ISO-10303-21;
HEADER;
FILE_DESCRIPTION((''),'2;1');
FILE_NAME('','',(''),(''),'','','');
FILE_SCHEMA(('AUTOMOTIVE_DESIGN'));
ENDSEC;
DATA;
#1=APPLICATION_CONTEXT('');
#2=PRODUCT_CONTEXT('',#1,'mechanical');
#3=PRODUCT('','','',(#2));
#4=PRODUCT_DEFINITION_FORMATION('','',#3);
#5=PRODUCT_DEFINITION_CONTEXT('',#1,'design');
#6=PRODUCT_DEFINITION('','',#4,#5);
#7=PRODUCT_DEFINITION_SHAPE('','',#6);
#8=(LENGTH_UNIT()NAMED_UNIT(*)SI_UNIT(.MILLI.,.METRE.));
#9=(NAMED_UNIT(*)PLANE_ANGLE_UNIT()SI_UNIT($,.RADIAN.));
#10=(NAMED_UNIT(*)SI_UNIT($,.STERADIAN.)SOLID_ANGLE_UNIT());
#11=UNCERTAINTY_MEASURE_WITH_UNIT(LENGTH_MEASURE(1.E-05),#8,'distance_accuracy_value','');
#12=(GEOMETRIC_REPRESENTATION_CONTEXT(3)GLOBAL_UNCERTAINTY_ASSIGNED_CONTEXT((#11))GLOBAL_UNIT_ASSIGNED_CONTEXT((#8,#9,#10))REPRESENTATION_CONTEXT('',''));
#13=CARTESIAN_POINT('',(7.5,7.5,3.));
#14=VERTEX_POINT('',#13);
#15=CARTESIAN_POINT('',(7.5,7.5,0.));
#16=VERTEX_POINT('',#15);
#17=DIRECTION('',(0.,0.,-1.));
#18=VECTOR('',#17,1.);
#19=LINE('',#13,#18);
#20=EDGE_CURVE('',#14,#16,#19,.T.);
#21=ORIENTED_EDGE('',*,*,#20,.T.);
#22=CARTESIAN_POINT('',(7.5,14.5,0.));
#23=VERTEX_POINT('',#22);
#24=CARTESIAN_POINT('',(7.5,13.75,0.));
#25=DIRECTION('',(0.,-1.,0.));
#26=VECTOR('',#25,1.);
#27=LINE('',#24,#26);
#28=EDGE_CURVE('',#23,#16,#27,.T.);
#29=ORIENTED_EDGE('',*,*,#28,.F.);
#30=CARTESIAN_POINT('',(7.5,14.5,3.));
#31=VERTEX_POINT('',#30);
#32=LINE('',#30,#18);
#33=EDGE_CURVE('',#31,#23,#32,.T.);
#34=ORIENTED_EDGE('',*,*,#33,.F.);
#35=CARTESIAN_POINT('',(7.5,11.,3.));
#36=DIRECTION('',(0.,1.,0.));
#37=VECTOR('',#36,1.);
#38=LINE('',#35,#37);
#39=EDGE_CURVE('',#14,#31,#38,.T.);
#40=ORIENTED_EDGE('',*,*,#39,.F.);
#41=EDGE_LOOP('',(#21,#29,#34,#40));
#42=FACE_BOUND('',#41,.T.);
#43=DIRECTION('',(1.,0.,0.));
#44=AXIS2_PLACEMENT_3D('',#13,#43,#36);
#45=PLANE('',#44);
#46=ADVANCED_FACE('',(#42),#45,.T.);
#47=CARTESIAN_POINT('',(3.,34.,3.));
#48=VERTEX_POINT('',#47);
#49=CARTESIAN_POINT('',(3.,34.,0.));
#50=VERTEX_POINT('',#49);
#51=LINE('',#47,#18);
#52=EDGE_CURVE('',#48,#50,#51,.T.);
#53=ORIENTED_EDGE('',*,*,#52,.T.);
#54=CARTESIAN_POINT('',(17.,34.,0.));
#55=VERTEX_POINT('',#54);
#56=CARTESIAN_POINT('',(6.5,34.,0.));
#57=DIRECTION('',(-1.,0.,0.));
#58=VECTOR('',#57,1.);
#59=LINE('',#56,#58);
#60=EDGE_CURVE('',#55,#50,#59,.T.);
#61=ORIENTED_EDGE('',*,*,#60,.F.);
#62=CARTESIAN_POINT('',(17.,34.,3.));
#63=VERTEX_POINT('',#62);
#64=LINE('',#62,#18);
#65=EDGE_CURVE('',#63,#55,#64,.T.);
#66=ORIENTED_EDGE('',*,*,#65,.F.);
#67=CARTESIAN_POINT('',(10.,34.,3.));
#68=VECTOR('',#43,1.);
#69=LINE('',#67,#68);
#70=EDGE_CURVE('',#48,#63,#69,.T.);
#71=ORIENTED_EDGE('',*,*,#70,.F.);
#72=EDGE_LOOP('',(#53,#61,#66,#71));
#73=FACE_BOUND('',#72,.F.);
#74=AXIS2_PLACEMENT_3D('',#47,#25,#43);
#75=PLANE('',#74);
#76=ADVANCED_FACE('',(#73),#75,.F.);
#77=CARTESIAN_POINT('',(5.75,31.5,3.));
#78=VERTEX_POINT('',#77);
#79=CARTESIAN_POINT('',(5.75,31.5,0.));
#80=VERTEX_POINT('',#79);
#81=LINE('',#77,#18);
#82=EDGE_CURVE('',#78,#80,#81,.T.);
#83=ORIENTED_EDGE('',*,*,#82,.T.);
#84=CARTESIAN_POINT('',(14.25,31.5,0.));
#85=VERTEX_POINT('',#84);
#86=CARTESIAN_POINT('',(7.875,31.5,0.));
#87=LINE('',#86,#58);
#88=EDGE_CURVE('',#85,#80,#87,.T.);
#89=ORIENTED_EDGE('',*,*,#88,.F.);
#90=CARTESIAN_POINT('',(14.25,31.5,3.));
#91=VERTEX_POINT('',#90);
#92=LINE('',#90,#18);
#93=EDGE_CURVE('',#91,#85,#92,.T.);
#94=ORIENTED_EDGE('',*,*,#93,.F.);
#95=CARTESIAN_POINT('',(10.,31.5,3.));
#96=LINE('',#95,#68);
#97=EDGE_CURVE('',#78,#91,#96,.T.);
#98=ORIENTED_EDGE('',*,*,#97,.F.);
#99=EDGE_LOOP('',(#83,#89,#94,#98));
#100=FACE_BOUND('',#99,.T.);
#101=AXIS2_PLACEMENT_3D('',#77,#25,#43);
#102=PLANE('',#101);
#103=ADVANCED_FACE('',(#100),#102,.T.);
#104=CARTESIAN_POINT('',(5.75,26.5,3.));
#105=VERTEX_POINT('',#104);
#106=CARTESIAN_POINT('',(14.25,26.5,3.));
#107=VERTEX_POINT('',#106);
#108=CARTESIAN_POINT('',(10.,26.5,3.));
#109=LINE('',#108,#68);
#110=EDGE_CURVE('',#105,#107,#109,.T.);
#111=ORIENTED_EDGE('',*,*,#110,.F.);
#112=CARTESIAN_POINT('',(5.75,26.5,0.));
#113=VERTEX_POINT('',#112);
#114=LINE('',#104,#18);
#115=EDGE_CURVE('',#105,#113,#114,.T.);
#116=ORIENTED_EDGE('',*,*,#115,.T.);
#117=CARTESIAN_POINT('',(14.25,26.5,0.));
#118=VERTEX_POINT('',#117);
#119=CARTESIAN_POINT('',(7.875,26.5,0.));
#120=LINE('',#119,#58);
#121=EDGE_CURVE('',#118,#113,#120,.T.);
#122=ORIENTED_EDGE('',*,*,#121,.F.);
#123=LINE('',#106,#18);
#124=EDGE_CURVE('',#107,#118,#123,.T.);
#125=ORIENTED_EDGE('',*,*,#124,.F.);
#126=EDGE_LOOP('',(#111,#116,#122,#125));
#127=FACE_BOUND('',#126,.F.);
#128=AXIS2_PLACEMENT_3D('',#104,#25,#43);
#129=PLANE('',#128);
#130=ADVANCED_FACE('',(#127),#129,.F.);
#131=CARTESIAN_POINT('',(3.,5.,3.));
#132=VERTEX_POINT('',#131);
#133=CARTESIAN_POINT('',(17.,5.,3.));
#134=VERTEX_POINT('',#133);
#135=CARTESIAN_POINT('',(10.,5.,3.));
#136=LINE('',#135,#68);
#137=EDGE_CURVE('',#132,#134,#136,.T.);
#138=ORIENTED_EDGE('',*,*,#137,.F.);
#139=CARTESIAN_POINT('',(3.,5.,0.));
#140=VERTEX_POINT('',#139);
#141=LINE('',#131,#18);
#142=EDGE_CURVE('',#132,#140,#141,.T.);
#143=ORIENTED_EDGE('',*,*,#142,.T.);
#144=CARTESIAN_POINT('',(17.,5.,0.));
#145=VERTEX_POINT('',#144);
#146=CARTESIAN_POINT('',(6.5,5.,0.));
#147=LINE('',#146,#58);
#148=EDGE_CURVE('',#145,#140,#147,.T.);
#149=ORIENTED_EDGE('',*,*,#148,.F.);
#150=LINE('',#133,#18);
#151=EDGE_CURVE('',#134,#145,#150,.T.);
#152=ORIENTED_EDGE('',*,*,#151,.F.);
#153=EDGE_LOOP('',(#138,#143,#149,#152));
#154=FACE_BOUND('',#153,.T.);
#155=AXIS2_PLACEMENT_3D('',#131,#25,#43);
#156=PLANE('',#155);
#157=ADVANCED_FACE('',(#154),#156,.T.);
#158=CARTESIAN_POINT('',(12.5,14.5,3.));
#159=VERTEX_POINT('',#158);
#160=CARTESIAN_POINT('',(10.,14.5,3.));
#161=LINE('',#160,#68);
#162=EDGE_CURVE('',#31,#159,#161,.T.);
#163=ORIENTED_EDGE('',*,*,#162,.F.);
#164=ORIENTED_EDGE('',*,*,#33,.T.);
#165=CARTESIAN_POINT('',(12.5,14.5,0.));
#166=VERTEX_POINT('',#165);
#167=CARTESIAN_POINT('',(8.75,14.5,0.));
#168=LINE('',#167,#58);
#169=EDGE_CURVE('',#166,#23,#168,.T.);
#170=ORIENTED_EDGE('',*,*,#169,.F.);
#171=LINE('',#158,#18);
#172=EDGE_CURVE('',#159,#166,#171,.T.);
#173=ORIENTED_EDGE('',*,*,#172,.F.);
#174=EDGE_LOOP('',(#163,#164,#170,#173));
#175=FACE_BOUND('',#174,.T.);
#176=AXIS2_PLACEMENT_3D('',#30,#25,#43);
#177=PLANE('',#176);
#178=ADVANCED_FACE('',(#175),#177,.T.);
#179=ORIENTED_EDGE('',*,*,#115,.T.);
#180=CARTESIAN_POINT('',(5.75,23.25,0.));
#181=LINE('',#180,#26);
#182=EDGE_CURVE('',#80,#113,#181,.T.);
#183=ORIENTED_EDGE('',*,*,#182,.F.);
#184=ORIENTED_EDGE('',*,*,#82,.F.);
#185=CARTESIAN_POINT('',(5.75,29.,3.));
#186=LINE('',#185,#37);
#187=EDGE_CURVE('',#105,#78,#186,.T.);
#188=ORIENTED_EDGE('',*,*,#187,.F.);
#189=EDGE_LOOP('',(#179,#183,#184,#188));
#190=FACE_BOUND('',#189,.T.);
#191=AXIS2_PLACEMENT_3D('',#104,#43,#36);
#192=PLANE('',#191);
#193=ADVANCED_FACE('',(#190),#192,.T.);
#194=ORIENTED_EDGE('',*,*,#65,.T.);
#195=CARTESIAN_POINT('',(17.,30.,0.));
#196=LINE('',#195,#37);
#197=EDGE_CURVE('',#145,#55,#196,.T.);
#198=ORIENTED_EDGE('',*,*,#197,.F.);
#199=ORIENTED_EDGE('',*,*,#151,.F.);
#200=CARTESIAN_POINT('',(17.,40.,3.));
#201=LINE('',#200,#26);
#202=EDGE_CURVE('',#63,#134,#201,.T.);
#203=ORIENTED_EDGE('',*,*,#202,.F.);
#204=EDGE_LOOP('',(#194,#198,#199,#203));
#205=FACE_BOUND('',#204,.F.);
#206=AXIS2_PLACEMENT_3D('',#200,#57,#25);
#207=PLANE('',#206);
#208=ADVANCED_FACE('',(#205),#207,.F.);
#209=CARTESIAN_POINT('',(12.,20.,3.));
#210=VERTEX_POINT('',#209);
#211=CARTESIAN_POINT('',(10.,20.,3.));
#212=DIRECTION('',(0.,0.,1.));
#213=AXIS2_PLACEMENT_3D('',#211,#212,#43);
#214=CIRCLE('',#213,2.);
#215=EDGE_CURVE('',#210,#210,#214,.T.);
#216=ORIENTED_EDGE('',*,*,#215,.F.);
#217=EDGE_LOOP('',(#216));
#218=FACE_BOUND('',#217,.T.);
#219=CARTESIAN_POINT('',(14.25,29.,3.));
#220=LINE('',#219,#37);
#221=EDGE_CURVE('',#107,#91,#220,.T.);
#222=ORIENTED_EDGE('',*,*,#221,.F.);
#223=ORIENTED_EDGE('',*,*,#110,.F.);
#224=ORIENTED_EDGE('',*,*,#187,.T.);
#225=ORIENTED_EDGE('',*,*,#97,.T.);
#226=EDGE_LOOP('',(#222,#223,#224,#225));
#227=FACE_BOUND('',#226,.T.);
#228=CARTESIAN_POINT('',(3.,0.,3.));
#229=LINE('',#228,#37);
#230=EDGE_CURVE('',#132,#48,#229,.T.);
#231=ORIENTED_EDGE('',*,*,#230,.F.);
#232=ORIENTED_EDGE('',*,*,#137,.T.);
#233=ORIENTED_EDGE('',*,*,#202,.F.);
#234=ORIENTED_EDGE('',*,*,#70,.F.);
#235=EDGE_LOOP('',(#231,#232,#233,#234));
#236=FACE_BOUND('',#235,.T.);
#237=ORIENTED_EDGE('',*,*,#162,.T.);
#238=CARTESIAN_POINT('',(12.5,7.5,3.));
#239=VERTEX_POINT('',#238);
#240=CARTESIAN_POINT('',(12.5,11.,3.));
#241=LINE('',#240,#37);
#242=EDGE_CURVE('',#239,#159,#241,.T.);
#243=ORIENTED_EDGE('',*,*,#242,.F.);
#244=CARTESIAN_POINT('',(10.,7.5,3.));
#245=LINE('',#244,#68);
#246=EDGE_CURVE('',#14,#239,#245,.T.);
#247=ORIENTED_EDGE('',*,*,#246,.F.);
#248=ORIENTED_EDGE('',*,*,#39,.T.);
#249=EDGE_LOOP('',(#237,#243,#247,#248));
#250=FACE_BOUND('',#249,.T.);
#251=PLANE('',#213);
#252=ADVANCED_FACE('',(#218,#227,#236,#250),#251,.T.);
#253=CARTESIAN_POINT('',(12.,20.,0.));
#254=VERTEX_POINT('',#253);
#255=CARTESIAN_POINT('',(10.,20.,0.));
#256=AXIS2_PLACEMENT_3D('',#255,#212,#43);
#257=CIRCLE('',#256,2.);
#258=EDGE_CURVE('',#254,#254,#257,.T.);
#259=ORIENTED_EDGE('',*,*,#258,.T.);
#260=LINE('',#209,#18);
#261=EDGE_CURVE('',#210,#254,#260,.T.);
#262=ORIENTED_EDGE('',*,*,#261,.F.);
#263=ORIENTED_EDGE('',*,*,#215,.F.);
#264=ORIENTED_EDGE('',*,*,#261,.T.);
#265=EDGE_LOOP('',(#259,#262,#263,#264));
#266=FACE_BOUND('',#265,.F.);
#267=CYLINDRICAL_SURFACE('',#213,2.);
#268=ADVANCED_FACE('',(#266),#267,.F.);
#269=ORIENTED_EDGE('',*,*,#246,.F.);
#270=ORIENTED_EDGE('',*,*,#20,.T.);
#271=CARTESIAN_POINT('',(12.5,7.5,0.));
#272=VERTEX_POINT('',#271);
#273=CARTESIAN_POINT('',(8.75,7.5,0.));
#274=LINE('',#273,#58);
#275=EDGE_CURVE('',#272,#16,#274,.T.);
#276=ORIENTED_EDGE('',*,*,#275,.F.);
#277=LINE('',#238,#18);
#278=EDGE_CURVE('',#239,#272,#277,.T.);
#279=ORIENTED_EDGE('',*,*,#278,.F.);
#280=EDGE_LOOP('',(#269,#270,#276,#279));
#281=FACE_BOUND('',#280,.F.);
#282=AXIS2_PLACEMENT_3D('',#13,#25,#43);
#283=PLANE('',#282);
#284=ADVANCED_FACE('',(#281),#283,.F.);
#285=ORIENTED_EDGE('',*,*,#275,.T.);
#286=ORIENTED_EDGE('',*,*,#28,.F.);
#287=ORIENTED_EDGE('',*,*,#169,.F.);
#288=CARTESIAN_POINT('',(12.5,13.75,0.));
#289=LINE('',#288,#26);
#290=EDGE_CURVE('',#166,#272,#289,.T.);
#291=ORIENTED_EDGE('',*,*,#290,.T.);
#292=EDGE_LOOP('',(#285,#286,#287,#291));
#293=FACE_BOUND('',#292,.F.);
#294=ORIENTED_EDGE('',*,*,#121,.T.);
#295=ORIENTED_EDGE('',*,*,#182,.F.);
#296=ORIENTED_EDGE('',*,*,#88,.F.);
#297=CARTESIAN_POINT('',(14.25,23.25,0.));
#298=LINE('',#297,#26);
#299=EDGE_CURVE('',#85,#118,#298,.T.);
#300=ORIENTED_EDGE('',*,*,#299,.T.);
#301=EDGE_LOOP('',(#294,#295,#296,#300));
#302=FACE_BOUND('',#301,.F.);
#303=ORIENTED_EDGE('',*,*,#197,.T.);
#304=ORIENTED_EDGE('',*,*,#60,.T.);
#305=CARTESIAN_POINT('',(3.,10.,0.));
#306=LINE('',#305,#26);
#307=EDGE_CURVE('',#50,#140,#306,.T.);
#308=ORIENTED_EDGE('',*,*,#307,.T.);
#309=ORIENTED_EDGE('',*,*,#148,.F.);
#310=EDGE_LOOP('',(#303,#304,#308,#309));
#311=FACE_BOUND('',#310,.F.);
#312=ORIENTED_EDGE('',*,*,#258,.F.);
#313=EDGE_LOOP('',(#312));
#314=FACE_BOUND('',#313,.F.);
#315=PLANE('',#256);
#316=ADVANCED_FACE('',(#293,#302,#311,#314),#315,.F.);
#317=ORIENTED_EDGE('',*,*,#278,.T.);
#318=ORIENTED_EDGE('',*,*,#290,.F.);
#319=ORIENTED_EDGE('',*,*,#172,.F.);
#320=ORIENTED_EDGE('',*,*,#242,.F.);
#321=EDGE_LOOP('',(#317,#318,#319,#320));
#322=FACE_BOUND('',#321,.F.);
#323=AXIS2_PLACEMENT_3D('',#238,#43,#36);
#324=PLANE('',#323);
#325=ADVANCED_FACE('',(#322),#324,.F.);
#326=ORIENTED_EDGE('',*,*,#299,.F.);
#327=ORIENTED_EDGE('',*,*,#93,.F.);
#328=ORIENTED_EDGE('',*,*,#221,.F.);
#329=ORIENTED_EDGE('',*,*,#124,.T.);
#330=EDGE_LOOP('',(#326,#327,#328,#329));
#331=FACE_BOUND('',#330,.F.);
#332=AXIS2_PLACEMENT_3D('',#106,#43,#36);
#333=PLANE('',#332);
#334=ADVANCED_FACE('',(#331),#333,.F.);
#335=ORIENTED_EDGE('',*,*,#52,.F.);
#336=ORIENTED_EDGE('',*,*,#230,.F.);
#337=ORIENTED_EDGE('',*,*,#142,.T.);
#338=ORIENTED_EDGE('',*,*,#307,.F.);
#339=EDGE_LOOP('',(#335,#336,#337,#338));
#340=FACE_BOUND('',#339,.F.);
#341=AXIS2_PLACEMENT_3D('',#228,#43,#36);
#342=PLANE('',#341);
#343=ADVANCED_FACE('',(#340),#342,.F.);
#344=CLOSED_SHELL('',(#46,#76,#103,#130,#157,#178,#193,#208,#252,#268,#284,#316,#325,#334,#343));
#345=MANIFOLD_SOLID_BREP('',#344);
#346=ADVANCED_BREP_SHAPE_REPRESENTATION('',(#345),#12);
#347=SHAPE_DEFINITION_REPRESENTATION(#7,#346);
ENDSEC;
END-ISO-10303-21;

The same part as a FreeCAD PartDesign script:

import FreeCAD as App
import Part
import Sketcher

doc = App.newDocument("Part")
body = doc.addObject("PartDesign::Body", "Body")

# Sketch on XY plane
sketch1 = body.newObject("Sketcher::SketchObject", "Sketch")
sketch1.AttachmentSupport = (doc.getObject("XY_Plane"), [""])
sketch1.MapMode = "FlatFace"
sketch1.addGeometry([
    Part.LineSegment(App.Vector(0, 40, 0), App.Vector(0, 0, 0)),
    Part.LineSegment(App.Vector(0, 0, 0), App.Vector(20, 0, 0)),
    Part.LineSegment(App.Vector(20, 0, 0), App.Vector(20, 40, 0)),
    Part.LineSegment(App.Vector(20, 40, 0), App.Vector(0, 40, 0)),
], False)
sketch1.addConstraint([
    Sketcher.Constraint("Coincident", 0, 2, 1, 1),
    Sketcher.Constraint("Coincident", 1, 2, 2, 1),
    Sketcher.Constraint("Coincident", 2, 2, 3, 1),
    Sketcher.Constraint("Coincident", 3, 2, 0, 1),
    Sketcher.Constraint("Vertical", 0),
    Sketcher.Constraint("Horizontal", 1),
    Sketcher.Constraint("Vertical", 2),
    Sketcher.Constraint("Horizontal", 3),
    Sketcher.Constraint("Coincident", 0, 2, -1, 1),
    Sketcher.Constraint("DistanceX", 1, 1, 1, 2, 20.0),
    Sketcher.Constraint("DistanceY", 0, 2, 0, 1, 40.0),
])
pad1 = body.newObject("PartDesign::Pad", "Pad")
pad1.Profile = sketch1
pad1.Length = 3

# Sketch on XY plane
sketch2 = body.newObject("Sketcher::SketchObject", "Sketch001")
sketch2.AttachmentSupport = (doc.getObject("XY_Plane"), [""])
sketch2.MapMode = "FlatFace"
sketch2.AttachmentOffset = App.Placement(App.Vector(0, 0, 3), App.Rotation())
sketch2.addGeometry(Part.Circle(App.Vector(10, 20, 0), App.Vector(0, 0, 1), 2), False)
sketch2.addConstraint([
    Sketcher.Constraint("Diameter", 0, 4.0),
    Sketcher.Constraint("DistanceX", -1, 1, 0, 3, 10.0),
    Sketcher.Constraint("DistanceY", -1, 1, 0, 3, 20.0),
])
pocket1 = body.newObject("PartDesign::Pocket", "Pocket")
pocket1.Profile = sketch2
pocket1.Type = "UpToFirst"

# Sketch on XY plane
sketch3 = body.newObject("Sketcher::SketchObject", "Sketch002")
sketch3.AttachmentSupport = (doc.getObject("XY_Plane"), [""])
sketch3.MapMode = "FlatFace"
sketch3.AttachmentOffset = App.Placement(App.Vector(0, 0, 3), App.Rotation())
sketch3.addGeometry([
    Part.LineSegment(App.Vector(6, 32, 0), App.Vector(6, 26, 0)),
    Part.LineSegment(App.Vector(6, 26, 0), App.Vector(14, 26, 0)),
    Part.LineSegment(App.Vector(14, 26, 0), App.Vector(14, 32, 0)),
    Part.LineSegment(App.Vector(14, 32, 0), App.Vector(6, 32, 0)),
], False)
sketch3.addConstraint([
    Sketcher.Constraint("Coincident", 0, 2, 1, 1),
    Sketcher.Constraint("Coincident", 1, 2, 2, 1),
    Sketcher.Constraint("Coincident", 2, 2, 3, 1),
    Sketcher.Constraint("Coincident", 3, 2, 0, 1),
    Sketcher.Constraint("Vertical", 0),
    Sketcher.Constraint("Horizontal", 1),
    Sketcher.Constraint("Vertical", 2),
    Sketcher.Constraint("Horizontal", 3),
    Sketcher.Constraint("DistanceY", 0, 2, 0, 1, 5.0),
    Sketcher.Constraint("DistanceX", 1, 1, 1, 2, 8.5),
    Sketcher.Constraint("DistanceY", -1, 1, 0, 2, 26.5),
    Sketcher.Constraint("DistanceX", -1, 1, 0, 2, 5.75),
])
pocket2 = body.newObject("PartDesign::Pocket", "Pocket001")
pocket2.Profile = sketch3
pocket2.Type = "UpToFirst"

# Sketch on XY plane
sketch4 = body.newObject("Sketcher::SketchObject", "Sketch003")
sketch4.AttachmentSupport = (doc.getObject("XY_Plane"), [""])
sketch4.MapMode = "FlatFace"
sketch4.AttachmentOffset = App.Placement(App.Vector(0, 0, 3), App.Rotation())
sketch4.addGeometry([
    Part.LineSegment(App.Vector(8, 14, 0), App.Vector(8, 8, 0)),
    Part.LineSegment(App.Vector(8, 8, 0), App.Vector(12, 8, 0)),
    Part.LineSegment(App.Vector(12, 8, 0), App.Vector(12, 14, 0)),
    Part.LineSegment(App.Vector(12, 14, 0), App.Vector(8, 14, 0)),
], False)
sketch4.addConstraint([
    Sketcher.Constraint("Coincident", 0, 2, 1, 1),
    Sketcher.Constraint("Coincident", 1, 2, 2, 1),
    Sketcher.Constraint("Coincident", 2, 2, 3, 1),
    Sketcher.Constraint("Coincident", 3, 2, 0, 1),
    Sketcher.Constraint("Vertical", 0),
    Sketcher.Constraint("Horizontal", 1),
    Sketcher.Constraint("Vertical", 2),
    Sketcher.Constraint("Horizontal", 3),
    Sketcher.Constraint("DistanceX", 1, 1, 1, 2, 5.0),
    Sketcher.Constraint("DistanceY", 0, 2, 0, 1, 7.0),
    Sketcher.Constraint("DistanceX", -1, 1, 0, 2, 7.5),
    Sketcher.Constraint("DistanceY", -1, 1, 0, 2, 7.5),
])
pocket3 = body.newObject("PartDesign::Pocket", "Pocket002")
pocket3.Profile = sketch4
pocket3.Type = "UpToFirst"

# Sketch on XY plane
sketch5 = body.newObject("Sketcher::SketchObject", "Sketch004")
sketch5.AttachmentSupport = (doc.getObject("XY_Plane"), [""])
sketch5.MapMode = "FlatFace"
sketch5.AttachmentOffset = App.Placement(App.Vector(0, 0, 3), App.Rotation())
sketch5.addGeometry([
    Part.LineSegment(App.Vector(0, 40, 0), App.Vector(0, 0, 0)),
    Part.LineSegment(App.Vector(0, 0, 0), App.Vector(3, 0, 0)),
    Part.LineSegment(App.Vector(3, 0, 0), App.Vector(3, 40, 0)),
    Part.LineSegment(App.Vector(3, 40, 0), App.Vector(0, 40, 0)),
], False)
sketch5.addConstraint([
    Sketcher.Constraint("Coincident", 0, 2, 1, 1),
    Sketcher.Constraint("Coincident", 1, 2, 2, 1),
    Sketcher.Constraint("Coincident", 2, 2, 3, 1),
    Sketcher.Constraint("Coincident", 3, 2, 0, 1),
    Sketcher.Constraint("Vertical", 0),
    Sketcher.Constraint("Horizontal", 1),
    Sketcher.Constraint("Vertical", 2),
    Sketcher.Constraint("Horizontal", 3),
    Sketcher.Constraint("Coincident", 0, 2, -1, 1),
    Sketcher.Constraint("DistanceX", 1, 1, 1, 2, 3.0),
    Sketcher.Constraint("DistanceY", 0, 2, 0, 1, 40.0),
])
pocket4 = body.newObject("PartDesign::Pocket", "Pocket003")
pocket4.Profile = sketch5
pocket4.Type = "UpToFirst"

# Sketch on XY plane
sketch6 = body.newObject("Sketcher::SketchObject", "Sketch005")
sketch6.AttachmentSupport = (doc.getObject("XY_Plane"), [""])
sketch6.MapMode = "FlatFace"
sketch6.AttachmentOffset = App.Placement(App.Vector(0, 0, 3), App.Rotation())
sketch6.addGeometry([
    Part.LineSegment(App.Vector(17, 0, 0), App.Vector(20, 0, 0)),
    Part.LineSegment(App.Vector(20, 0, 0), App.Vector(20, 40, 0)),
    Part.LineSegment(App.Vector(20, 40, 0), App.Vector(17, 40, 0)),
    Part.LineSegment(App.Vector(17, 40, 0), App.Vector(17, 0, 0)),
], False)
sketch6.addConstraint([
    Sketcher.Constraint("Coincident", 0, 2, 1, 1),
    Sketcher.Constraint("Coincident", 1, 2, 2, 1),
    Sketcher.Constraint("Coincident", 2, 2, 3, 1),
    Sketcher.Constraint("Coincident", 3, 2, 0, 1),
    Sketcher.Constraint("Horizontal", 0),
    Sketcher.Constraint("Vertical", 1),
    Sketcher.Constraint("Horizontal", 2),
    Sketcher.Constraint("Vertical", 3),
    Sketcher.Constraint("PointOnObject", 0, 2, -1),
    Sketcher.Constraint("DistanceX", 0, 1, 0, 2, 3.0),
    Sketcher.Constraint("DistanceY", 1, 1, 1, 2, 40.0),
    Sketcher.Constraint("DistanceX", -1, 1, 0, 2, 20.0),
])
pocket5 = body.newObject("PartDesign::Pocket", "Pocket004")
pocket5.Profile = sketch6
pocket5.Type = "UpToFirst"

# Sketch on XY plane
sketch7 = body.newObject("Sketcher::SketchObject", "Sketch006")
sketch7.AttachmentSupport = (doc.getObject("XY_Plane"), [""])
sketch7.MapMode = "FlatFace"
sketch7.AttachmentOffset = App.Placement(App.Vector(0, 0, 3), App.Rotation())
sketch7.addGeometry([
    Part.LineSegment(App.Vector(3, 5, 0), App.Vector(3, 0, 0)),
    Part.LineSegment(App.Vector(3, 0, 0), App.Vector(17, 0, 0)),
    Part.LineSegment(App.Vector(17, 0, 0), App.Vector(17, 5, 0)),
    Part.LineSegment(App.Vector(17, 5, 0), App.Vector(3, 5, 0)),
], False)
sketch7.addConstraint([
    Sketcher.Constraint("Coincident", 0, 2, 1, 1),
    Sketcher.Constraint("Coincident", 1, 2, 2, 1),
    Sketcher.Constraint("Coincident", 2, 2, 3, 1),
    Sketcher.Constraint("Coincident", 3, 2, 0, 1),
    Sketcher.Constraint("Vertical", 0),
    Sketcher.Constraint("Horizontal", 1),
    Sketcher.Constraint("Vertical", 2),
    Sketcher.Constraint("Horizontal", 3),
    Sketcher.Constraint("PointOnObject", 0, 2, -1),
    Sketcher.Constraint("DistanceX", 1, 1, 1, 2, 14.0),
    Sketcher.Constraint("DistanceY", 0, 2, 0, 1, 5.0),
    Sketcher.Constraint("DistanceX", -1, 1, 0, 2, 3.0),
])
pocket6 = body.newObject("PartDesign::Pocket", "Pocket005")
pocket6.Profile = sketch7
pocket6.Type = "UpToFirst"

# Sketch on XY plane
sketch8 = body.newObject("Sketcher::SketchObject", "Sketch007")
sketch8.AttachmentSupport = (doc.getObject("XY_Plane"), [""])
sketch8.MapMode = "FlatFace"
sketch8.AttachmentOffset = App.Placement(App.Vector(0, 0, 3), App.Rotation())
sketch8.addGeometry([
    Part.LineSegment(App.Vector(3, 40, 0), App.Vector(3, 34, 0)),
    Part.LineSegment(App.Vector(3, 34, 0), App.Vector(17, 34, 0)),
    Part.LineSegment(App.Vector(17, 34, 0), App.Vector(17, 40, 0)),
    Part.LineSegment(App.Vector(17, 40, 0), App.Vector(3, 40, 0)),
], False)
sketch8.addConstraint([
    Sketcher.Constraint("Coincident", 0, 2, 1, 1),
    Sketcher.Constraint("Coincident", 1, 2, 2, 1),
    Sketcher.Constraint("Coincident", 2, 2, 3, 1),
    Sketcher.Constraint("Coincident", 3, 2, 0, 1),
    Sketcher.Constraint("Vertical", 0),
    Sketcher.Constraint("Horizontal", 1),
    Sketcher.Constraint("Vertical", 2),
    Sketcher.Constraint("Horizontal", 3),
    Sketcher.Constraint("DistanceX", 1, 1, 1, 2, 14.0),
    Sketcher.Constraint("DistanceY", 0, 2, 0, 1, 6.0),
    Sketcher.Constraint("DistanceX", -1, 1, 0, 2, 3.0),
    Sketcher.Constraint("DistanceY", -1, 1, 0, 2, 34.0),
])
pocket7 = body.newObject("PartDesign::Pocket", "Pocket006")
pocket7.Profile = sketch8
pocket7.Type = "UpToFirst"

doc.recompute()
